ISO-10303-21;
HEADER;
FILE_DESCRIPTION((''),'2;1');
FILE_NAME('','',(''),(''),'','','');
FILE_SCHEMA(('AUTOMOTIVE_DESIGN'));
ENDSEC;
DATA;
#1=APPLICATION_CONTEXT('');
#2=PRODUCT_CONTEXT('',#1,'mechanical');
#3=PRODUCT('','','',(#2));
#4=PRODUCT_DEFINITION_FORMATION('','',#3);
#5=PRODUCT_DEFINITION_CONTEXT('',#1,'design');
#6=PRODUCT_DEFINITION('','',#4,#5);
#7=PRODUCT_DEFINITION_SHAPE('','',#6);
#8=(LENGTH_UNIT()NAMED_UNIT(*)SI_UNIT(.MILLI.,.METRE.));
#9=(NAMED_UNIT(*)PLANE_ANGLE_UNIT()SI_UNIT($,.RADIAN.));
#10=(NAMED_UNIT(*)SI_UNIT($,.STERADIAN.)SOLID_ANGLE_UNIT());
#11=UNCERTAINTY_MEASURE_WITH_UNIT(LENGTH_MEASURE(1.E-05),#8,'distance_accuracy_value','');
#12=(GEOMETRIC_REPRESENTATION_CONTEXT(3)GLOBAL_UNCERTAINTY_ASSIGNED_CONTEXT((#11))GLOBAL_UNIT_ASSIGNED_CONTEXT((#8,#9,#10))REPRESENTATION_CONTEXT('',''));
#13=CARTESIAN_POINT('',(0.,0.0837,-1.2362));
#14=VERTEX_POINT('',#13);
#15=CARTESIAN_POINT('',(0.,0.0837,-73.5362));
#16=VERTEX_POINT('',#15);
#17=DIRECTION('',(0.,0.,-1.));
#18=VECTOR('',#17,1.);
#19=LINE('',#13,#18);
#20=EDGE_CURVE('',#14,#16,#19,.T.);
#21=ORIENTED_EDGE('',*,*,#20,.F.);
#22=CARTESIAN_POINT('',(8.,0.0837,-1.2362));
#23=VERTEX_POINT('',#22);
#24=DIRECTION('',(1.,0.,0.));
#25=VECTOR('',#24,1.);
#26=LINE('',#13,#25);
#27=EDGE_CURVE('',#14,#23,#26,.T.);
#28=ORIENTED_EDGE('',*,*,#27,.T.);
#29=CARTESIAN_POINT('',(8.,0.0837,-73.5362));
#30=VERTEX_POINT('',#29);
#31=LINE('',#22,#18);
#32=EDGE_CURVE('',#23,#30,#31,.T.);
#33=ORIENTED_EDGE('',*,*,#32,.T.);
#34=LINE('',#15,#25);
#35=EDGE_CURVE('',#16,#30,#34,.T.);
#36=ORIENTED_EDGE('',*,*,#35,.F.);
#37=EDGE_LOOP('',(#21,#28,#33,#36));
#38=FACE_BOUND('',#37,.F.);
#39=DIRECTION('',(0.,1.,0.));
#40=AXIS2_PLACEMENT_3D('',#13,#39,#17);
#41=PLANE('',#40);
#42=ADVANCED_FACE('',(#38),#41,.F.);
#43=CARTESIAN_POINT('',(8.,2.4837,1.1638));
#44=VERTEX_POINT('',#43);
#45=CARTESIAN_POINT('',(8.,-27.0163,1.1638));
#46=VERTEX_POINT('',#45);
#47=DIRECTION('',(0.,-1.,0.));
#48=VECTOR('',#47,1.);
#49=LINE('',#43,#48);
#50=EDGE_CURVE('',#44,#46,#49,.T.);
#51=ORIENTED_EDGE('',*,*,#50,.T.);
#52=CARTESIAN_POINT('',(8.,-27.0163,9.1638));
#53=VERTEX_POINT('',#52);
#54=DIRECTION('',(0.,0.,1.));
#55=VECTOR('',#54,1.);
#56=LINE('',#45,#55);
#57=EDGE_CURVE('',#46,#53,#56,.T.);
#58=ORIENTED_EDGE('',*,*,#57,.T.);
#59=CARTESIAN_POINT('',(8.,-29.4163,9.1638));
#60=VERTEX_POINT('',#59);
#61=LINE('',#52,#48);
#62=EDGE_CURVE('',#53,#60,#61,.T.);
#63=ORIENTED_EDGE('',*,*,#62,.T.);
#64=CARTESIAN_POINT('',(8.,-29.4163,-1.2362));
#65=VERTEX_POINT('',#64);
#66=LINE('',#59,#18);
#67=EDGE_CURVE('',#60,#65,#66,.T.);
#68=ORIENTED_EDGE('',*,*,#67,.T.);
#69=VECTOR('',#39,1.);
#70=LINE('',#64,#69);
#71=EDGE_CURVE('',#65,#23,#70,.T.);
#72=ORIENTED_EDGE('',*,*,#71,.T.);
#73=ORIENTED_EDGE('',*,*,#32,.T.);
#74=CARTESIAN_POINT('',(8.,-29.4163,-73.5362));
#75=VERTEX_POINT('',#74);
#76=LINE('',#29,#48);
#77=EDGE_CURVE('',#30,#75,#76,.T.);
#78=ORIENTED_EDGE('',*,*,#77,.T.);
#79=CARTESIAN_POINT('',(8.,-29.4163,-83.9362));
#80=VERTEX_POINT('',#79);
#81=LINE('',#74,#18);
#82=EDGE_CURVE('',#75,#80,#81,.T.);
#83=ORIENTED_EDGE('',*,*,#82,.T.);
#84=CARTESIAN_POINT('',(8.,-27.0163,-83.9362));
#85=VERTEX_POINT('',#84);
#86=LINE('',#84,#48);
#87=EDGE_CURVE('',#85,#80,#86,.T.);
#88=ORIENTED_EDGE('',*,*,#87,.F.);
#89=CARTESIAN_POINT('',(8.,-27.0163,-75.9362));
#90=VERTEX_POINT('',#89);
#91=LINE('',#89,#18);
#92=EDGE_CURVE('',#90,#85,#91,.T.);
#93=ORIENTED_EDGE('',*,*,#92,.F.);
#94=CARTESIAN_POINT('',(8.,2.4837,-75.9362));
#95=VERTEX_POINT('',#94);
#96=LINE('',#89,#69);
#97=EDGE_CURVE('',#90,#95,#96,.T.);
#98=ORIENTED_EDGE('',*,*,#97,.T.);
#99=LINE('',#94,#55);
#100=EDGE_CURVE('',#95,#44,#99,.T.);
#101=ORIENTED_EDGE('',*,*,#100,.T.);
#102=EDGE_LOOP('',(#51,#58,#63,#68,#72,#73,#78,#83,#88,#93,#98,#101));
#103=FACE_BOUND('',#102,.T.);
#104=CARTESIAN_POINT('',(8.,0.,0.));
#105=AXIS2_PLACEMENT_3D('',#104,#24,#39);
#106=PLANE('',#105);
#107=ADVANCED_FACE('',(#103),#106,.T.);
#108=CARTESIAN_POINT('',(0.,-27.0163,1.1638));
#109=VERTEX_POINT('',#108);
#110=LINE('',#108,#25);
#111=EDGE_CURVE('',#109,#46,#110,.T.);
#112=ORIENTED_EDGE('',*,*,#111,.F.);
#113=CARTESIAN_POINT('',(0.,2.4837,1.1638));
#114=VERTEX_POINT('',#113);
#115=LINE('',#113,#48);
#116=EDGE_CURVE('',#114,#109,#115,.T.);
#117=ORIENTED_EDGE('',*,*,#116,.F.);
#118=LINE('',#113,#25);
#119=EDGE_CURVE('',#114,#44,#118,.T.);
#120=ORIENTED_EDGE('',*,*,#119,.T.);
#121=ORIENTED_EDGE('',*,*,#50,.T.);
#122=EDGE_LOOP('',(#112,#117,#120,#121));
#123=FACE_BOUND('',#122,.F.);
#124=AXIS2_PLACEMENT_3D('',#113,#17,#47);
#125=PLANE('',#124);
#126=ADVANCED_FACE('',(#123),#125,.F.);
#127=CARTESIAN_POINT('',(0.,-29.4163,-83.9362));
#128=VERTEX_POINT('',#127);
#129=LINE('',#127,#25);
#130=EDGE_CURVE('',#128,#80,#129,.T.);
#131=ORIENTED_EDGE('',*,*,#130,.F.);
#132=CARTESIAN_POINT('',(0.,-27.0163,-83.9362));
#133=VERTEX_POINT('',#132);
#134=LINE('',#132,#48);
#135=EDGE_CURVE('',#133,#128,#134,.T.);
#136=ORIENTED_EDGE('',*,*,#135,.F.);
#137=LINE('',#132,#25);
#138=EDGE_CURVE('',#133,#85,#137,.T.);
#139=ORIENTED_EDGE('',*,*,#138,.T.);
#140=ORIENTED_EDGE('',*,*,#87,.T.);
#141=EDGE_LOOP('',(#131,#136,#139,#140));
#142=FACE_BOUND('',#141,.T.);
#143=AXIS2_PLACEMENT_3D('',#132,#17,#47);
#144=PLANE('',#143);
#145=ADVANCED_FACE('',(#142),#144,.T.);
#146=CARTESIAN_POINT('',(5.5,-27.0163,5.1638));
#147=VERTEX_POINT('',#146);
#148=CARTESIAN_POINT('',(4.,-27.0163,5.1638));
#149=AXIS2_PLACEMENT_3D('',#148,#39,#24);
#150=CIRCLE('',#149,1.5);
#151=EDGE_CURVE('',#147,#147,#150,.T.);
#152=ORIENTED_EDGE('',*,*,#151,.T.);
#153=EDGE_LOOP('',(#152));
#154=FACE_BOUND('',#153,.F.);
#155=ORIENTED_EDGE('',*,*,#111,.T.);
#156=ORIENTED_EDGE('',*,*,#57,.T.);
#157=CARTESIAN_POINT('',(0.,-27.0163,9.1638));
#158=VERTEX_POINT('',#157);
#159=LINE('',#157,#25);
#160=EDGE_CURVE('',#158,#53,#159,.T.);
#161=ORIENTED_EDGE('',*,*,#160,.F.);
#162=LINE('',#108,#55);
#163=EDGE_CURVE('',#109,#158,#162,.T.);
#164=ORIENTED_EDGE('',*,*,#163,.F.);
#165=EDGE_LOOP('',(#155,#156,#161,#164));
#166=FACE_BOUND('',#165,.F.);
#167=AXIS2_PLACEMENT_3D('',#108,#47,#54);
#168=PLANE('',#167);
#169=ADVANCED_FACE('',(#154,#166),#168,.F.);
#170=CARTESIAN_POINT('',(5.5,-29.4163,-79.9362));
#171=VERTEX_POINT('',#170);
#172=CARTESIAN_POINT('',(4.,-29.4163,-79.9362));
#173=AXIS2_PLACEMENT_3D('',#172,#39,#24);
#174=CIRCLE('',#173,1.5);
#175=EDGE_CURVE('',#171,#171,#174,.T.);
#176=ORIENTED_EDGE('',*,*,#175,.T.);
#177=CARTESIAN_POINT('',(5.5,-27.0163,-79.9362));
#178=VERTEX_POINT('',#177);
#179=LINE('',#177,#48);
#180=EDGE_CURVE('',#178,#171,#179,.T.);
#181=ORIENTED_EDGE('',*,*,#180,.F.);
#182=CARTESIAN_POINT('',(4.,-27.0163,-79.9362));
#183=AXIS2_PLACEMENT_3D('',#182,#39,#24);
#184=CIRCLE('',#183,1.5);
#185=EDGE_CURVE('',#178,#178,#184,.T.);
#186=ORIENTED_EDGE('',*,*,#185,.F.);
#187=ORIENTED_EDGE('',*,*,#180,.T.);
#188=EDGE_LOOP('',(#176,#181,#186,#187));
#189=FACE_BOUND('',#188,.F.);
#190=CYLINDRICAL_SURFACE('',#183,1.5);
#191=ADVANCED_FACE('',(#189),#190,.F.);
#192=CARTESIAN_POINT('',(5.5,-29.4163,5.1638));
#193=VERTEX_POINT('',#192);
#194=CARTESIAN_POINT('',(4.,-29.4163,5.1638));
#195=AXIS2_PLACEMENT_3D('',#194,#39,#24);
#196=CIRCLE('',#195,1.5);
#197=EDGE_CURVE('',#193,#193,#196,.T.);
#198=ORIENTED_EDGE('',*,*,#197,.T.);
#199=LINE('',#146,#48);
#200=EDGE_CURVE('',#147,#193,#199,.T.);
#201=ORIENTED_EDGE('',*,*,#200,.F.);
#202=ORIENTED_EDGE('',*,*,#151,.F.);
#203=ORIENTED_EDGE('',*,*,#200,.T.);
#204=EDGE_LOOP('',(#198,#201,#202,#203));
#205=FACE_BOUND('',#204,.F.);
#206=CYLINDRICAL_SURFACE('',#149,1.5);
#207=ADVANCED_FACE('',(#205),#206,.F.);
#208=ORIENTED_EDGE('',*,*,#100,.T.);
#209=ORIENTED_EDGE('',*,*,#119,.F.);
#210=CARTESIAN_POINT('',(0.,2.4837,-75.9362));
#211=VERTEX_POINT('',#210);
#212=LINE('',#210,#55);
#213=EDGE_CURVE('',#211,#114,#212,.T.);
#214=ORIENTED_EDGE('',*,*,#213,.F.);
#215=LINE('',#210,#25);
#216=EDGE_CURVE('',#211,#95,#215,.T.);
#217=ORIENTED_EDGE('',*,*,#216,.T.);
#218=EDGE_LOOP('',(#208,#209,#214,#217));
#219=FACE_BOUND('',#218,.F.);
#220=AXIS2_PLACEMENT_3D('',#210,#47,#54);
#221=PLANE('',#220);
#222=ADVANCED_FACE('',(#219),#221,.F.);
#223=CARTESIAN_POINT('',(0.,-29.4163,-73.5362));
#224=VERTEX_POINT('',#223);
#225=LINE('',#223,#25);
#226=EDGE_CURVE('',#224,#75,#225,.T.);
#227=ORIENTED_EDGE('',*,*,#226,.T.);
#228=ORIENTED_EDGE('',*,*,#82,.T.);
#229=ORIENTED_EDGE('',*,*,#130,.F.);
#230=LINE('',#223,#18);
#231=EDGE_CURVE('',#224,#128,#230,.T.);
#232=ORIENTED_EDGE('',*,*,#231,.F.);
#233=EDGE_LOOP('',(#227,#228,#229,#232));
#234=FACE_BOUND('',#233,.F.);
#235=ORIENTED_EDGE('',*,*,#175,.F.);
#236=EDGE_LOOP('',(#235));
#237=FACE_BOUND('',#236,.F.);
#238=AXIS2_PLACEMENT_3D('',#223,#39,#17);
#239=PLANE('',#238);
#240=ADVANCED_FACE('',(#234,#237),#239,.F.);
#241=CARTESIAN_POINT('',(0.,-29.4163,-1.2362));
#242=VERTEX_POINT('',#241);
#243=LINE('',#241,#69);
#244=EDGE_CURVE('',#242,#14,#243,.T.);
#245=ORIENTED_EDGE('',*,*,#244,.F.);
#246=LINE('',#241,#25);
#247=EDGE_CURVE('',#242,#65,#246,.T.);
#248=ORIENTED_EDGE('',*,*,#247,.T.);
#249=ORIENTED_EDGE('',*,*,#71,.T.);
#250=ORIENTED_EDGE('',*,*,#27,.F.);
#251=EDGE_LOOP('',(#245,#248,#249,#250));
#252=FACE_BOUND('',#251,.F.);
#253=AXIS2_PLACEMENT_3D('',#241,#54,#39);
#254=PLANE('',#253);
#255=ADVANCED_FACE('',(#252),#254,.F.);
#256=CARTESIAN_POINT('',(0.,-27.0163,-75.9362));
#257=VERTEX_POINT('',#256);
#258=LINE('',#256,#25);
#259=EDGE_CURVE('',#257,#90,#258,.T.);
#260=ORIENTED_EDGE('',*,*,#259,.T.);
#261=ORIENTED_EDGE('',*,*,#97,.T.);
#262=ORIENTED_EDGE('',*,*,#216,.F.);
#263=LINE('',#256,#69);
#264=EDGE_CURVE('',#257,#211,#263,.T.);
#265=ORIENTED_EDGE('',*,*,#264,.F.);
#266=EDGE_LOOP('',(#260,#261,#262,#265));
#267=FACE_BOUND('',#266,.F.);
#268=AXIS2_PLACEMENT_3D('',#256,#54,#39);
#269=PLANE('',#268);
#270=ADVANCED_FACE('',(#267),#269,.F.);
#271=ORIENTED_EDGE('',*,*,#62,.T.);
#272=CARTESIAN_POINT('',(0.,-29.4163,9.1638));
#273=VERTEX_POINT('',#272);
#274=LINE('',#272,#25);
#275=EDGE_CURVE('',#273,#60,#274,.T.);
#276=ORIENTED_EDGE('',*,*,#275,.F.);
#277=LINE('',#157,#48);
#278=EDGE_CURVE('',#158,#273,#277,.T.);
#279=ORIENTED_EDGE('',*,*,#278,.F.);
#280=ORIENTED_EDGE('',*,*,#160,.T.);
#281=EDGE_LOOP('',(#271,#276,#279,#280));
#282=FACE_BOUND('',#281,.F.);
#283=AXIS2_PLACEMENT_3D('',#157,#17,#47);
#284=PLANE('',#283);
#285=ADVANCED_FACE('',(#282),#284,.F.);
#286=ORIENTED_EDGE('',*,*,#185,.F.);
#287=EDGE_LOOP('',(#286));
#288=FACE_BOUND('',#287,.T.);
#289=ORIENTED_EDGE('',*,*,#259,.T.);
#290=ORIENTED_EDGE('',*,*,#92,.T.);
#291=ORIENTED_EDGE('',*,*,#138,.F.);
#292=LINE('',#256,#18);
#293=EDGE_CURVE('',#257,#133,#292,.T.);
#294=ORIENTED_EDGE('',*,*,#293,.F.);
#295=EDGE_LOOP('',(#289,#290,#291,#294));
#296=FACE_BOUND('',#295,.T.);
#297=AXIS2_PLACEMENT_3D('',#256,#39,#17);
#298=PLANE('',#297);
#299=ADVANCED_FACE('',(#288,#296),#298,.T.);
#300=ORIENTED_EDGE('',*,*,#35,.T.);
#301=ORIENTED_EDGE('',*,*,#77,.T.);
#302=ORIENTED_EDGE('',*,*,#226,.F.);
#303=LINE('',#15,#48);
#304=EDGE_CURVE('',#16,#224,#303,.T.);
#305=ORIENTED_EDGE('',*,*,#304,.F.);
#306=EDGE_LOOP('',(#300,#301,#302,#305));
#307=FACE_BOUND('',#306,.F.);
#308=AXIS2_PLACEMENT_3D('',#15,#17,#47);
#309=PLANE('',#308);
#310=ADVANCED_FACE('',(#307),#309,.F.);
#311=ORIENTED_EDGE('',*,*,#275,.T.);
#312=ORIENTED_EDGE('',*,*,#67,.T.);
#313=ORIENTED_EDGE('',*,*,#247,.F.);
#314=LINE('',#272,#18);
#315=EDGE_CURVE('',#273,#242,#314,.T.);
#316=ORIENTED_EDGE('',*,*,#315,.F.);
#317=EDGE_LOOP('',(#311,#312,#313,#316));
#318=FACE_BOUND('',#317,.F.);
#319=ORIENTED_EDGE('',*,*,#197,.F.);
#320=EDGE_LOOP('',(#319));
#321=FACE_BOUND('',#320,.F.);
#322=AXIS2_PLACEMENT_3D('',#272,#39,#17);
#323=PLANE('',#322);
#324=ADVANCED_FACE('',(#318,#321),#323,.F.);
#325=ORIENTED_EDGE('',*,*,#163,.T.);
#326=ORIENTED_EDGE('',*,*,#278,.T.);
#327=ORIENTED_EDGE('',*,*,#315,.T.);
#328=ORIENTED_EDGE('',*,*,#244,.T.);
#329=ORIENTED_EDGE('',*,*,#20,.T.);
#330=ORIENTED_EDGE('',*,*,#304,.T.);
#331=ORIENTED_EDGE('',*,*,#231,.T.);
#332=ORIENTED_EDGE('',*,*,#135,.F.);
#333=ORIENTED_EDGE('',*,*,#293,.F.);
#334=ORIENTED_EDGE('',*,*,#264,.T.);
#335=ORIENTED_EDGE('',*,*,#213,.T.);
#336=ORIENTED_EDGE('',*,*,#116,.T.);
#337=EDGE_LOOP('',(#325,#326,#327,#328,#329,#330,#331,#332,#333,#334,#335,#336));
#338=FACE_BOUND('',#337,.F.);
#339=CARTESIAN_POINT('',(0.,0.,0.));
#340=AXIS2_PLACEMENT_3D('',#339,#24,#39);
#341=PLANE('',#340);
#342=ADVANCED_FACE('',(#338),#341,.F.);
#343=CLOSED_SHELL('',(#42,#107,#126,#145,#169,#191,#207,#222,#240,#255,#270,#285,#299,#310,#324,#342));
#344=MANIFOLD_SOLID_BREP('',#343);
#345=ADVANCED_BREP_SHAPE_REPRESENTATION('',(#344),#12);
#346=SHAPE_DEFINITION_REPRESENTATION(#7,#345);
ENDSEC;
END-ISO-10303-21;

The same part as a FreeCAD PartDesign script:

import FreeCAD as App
import Part
import Sketcher

V = App.Vector
Q = App.Units.Quantity

doc = App.newDocument("Part")
body = doc.addObject("PartDesign::Body", "Body")

# Sketch on YZ plane
sketch1 = body.newObject("Sketcher::SketchObject", "Sketch")
sketch1.AttachmentSupport = (doc.getObject("YZ_Plane"), [""])
sketch1.MapMode = "FlatFace"
sketch1.addGeometry(Part.LineSegment(V(-29.4, -1.2, 0), V(0.1, -1.2, 0)), False)
sketch1.addGeometry(Part.LineSegment(V(0.1, -1.2, 0), V(0.1, -73.5, 0)), False)
sketch1.addGeometry(Part.LineSegment(V(0.1, -73.5, 0), V(-29.4, -73.5, 0)), False)
sketch1.addGeometry(Part.LineSegment(V(-29.4, -73.5, 0), V(-29.4, -83.9, 0)), False)
sketch1.addGeometry(Part.LineSegment(V(-29.4, -83.9, 0), V(-27, -83.9, 0)), False)
sketch1.addGeometry(Part.LineSegment(V(-27, -83.9, 0), V(-27, -75.9, 0)), False)
sketch1.addGeometry(Part.LineSegment(V(-27, -75.9, 0), V(2.5, -75.9, 0)), False)
sketch1.addGeometry(Part.LineSegment(V(2.5, -75.9, 0), V(2.5, 1.2, 0)), False)
sketch1.addGeometry(Part.LineSegment(V(2.5, 1.2, 0), V(-27, 1.2, 0)), False)
sketch1.addGeometry(Part.LineSegment(V(-27, 1.2, 0), V(-27, 9.2, 0)), False)
sketch1.addGeometry(Part.LineSegment(V(-27, 9.2, 0), V(-29.4, 9.2, 0)), False)
sketch1.addGeometry(Part.LineSegment(V(-29.4, 9.2, 0), V(-29.4, -1.2, 0)), False)
sketch1.addConstraint(Sketcher.Constraint("Coincident", 0, 2, 1, 1))
sketch1.addConstraint(Sketcher.Constraint("Coincident", 1, 2, 2, 1))
sketch1.addConstraint(Sketcher.Constraint("Coincident", 2, 2, 3, 1))
sketch1.addConstraint(Sketcher.Constraint("Coincident", 3, 2, 4, 1))
sketch1.addConstraint(Sketcher.Constraint("Coincident", 4, 2, 5, 1))
sketch1.addConstraint(Sketcher.Constraint("Coincident", 5, 2, 6, 1))
sketch1.addConstraint(Sketcher.Constraint("Coincident", 6, 2, 7, 1))
sketch1.addConstraint(Sketcher.Constraint("Coincident", 7, 2, 8, 1))
sketch1.addConstraint(Sketcher.Constraint("Coincident", 8, 2, 9, 1))
sketch1.addConstraint(Sketcher.Constraint("Coincident", 9, 2, 10, 1))
sketch1.addConstraint(Sketcher.Constraint("Coincident", 10, 2, 11, 1))
sketch1.addConstraint(Sketcher.Constraint("Coincident", 11, 2, 0, 1))
sketch1.addConstraint(Sketcher.Constraint("Horizontal", 0))
sketch1.addConstraint(Sketcher.Constraint("Vertical", 1))
sketch1.addConstraint(Sketcher.Constraint("Horizontal", 2))
sketch1.addConstraint(Sketcher.Constraint("Vertical", 3))
sketch1.addConstraint(Sketcher.Constraint("Horizontal", 4))
sketch1.addConstraint(Sketcher.Constraint("Vertical", 5))
sketch1.addConstraint(Sketcher.Constraint("Horizontal", 6))
sketch1.addConstraint(Sketcher.Constraint("Vertical", 7))
sketch1.addConstraint(Sketcher.Constraint("Horizontal", 8))
sketch1.addConstraint(Sketcher.Constraint("Vertical", 9))
sketch1.addConstraint(Sketcher.Constraint("Horizontal", 10))
sketch1.addConstraint(Sketcher.Constraint("Vertical", 11))
sketch1.addConstraint(Sketcher.Constraint("Vertical", 5, 2, 8, 2))
sketch1.addConstraint(Sketcher.Constraint("Vertical", 3, 2, 10, 2))
sketch1.addConstraint(Sketcher.Constraint("Equal", 2, 6))
sketch1.addConstraint(Sketcher.Constraint("Equal", 5, 9))
sketch1.addConstraint(Sketcher.Constraint("Equal", 3, 11))
sketch1.addConstraint(Sketcher.Constraint("DistanceY", 5, 1, 5, 2, Q("8 mm")))
sketch1.addConstraint(Sketcher.Constraint("DistanceX", 0, 1, 0, 2, Q("29.5 mm")))
sketch1.addConstraint(Sketcher.Constraint("DistanceX", 4, 1, 4, 2, Q("2.4 mm")))
sketch1.addConstraint(Sketcher.Constraint("DistanceY", 1, 2, 1, 1, Q("72.3 mm")))
sketch1.addConstraint(Sketcher.Constraint("DistanceY", 5, 2, 2, 2, Q("2.4 mm")))
sketch1.addConstraint(Sketcher.Constraint("DistanceX", -1, 1, 0, 2, Q("0.0837 mm")))
sketch1.addConstraint(Sketcher.Constraint("DistanceY", 0, 2, -1, 1, Q("1.2362 mm")))
pad1 = body.newObject("PartDesign::Pad", "Pad")
pad1.Profile = sketch1
pad1.Length = 8

# Sketch on XZ plane
sketch2 = body.newObject("Sketcher::SketchObject", "Sketch001")
sketch2.AttachmentSupport = (doc.getObject("XZ_Plane"), [""])
sketch2.MapMode = "FlatFace"
sketch2.AttachmentOffset = App.Placement(V(0, 0, 27.0163), App.Rotation())
sketch2.addGeometry(Part.Circle(V(4, 5.2, 0), V(0, 0, 1), 1.5), False)
sketch2.addGeometry(Part.Circle(V(4, -79.9, 0), V(0, 0, 1), 1.5), False)
sketch2.addConstraint(Sketcher.Constraint("Equal", 0, 1))
sketch2.addConstraint(Sketcher.Constraint("Vertical", 0, 3, 1, 3))
sketch2.addConstraint(Sketcher.Constraint("Diameter", 0, Q("3 mm")))
sketch2.addConstraint(Sketcher.Constraint("DistanceX", -1, 1, 0, 3, Q("4 mm")))
sketch2.addConstraint(Sketcher.Constraint("DistanceY", 1, 3, 0, 3, Q("85.1 mm")))
sketch2.addConstraint(Sketcher.Constraint("DistanceY", -1, 1, 0, 3, Q("5.1638 mm")))
pocket1 = body.newObject("PartDesign::Pocket", "Pocket")
pocket1.Profile = sketch2
pocket1.Length = 10
pocket1.Reversed = True

doc.recompute()
